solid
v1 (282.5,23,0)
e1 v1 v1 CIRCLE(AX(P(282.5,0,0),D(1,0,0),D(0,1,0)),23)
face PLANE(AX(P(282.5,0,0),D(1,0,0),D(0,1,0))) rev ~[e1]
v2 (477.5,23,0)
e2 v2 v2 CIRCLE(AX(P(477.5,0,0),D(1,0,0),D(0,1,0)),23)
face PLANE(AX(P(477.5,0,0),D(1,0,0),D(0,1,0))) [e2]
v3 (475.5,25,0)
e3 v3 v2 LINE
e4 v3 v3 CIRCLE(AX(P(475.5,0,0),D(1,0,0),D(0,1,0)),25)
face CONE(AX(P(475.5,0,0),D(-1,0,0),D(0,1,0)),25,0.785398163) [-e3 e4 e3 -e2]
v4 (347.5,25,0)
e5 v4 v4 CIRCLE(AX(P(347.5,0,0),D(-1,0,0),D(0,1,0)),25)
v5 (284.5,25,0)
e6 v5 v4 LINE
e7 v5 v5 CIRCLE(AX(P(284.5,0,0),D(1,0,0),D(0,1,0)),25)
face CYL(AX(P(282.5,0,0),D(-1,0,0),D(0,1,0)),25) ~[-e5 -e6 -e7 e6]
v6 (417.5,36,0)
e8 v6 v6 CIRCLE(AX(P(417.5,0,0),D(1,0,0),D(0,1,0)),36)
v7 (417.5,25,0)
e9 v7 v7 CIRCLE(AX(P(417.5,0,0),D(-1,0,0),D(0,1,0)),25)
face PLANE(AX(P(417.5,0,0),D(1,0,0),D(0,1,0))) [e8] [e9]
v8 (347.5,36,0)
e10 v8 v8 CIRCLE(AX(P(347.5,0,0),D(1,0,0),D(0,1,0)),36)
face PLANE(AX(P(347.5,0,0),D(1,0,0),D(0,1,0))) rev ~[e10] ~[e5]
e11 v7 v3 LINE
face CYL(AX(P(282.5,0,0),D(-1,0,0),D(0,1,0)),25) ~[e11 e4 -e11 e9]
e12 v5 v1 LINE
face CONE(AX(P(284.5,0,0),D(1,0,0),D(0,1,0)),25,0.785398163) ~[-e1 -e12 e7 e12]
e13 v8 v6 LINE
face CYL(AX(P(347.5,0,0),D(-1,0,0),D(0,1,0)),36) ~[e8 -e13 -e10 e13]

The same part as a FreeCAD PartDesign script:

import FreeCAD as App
import Part
import Sketcher


def edges_at(feature, points):
    """Names of the edges that pass closest to the given points."""
    edges = feature.Shape.Edges
    near = lambda p: min(range(len(edges)), key=lambda i: edges[i].distToShape(Part.Vertex(*p))[0])
    return sorted({f"Edge{near(p) + 1}" for p in points})

doc = App.newDocument("Part")
body = doc.addObject("PartDesign::Body", "Body")

# Sketch on YZ plane
sketch1 = doc.addObject("Sketcher::SketchObject", "Sketch")
body.addObject(sketch1)
sketch1.AttachmentSupport = (doc.YZ_Plane, [""])
sketch1.MapMode = "FlatFace"
sketch1.AttachmentOffset = App.Placement(App.Vector(0, 0, 347.5), App.Rotation())
sketch1.addGeometry(Part.Circle(App.Vector(0, 0, 0), App.Vector(0, 0, 1), 36), False)
sketch1.addConstraint(Sketcher.Constraint("Coincident", 0, 3, -1, 1))
sketch1.addConstraint(Sketcher.Constraint("Diameter", 0, 72.0))
pad1 = doc.addObject("PartDesign::Pad", "Pad")
body.addObject(pad1)
pad1.Profile = sketch1
pad1.Length = 70

# Sketch on YZ plane
sketch2 = doc.addObject("Sketcher::SketchObject", "Sketch001")
body.addObject(sketch2)
sketch2.AttachmentSupport = (doc.YZ_Plane, [""])
sketch2.MapMode = "FlatFace"
sketch2.AttachmentOffset = App.Placement(App.Vector(0, 0, 282.5), App.Rotation())
sketch2.addGeometry(Part.Circle(App.Vector(0, 0, 0), App.Vector(0, 0, 1), 25), False)
sketch2.addConstraint(Sketcher.Constraint("Coincident", 0, 3, -1, 1))
sketch2.addConstraint(Sketcher.Constraint("Diameter", 0, 50.0))
pad2 = doc.addObject("PartDesign::Pad", "Pad001")
body.addObject(pad2)
pad2.Profile = sketch2
pad2.Length = 195
doc.recompute()

chamfer = doc.addObject("PartDesign::Chamfer", "Chamfer")
body.addObject(chamfer)
chamfer.Base = (pad2, edges_at(pad2, [(477.5, -25, 0), (282.5, -25, 0)]))
chamfer.ChamferType = "Two distances"
chamfer.Size = 2
chamfer.Size2 = 2

doc.recompute()
